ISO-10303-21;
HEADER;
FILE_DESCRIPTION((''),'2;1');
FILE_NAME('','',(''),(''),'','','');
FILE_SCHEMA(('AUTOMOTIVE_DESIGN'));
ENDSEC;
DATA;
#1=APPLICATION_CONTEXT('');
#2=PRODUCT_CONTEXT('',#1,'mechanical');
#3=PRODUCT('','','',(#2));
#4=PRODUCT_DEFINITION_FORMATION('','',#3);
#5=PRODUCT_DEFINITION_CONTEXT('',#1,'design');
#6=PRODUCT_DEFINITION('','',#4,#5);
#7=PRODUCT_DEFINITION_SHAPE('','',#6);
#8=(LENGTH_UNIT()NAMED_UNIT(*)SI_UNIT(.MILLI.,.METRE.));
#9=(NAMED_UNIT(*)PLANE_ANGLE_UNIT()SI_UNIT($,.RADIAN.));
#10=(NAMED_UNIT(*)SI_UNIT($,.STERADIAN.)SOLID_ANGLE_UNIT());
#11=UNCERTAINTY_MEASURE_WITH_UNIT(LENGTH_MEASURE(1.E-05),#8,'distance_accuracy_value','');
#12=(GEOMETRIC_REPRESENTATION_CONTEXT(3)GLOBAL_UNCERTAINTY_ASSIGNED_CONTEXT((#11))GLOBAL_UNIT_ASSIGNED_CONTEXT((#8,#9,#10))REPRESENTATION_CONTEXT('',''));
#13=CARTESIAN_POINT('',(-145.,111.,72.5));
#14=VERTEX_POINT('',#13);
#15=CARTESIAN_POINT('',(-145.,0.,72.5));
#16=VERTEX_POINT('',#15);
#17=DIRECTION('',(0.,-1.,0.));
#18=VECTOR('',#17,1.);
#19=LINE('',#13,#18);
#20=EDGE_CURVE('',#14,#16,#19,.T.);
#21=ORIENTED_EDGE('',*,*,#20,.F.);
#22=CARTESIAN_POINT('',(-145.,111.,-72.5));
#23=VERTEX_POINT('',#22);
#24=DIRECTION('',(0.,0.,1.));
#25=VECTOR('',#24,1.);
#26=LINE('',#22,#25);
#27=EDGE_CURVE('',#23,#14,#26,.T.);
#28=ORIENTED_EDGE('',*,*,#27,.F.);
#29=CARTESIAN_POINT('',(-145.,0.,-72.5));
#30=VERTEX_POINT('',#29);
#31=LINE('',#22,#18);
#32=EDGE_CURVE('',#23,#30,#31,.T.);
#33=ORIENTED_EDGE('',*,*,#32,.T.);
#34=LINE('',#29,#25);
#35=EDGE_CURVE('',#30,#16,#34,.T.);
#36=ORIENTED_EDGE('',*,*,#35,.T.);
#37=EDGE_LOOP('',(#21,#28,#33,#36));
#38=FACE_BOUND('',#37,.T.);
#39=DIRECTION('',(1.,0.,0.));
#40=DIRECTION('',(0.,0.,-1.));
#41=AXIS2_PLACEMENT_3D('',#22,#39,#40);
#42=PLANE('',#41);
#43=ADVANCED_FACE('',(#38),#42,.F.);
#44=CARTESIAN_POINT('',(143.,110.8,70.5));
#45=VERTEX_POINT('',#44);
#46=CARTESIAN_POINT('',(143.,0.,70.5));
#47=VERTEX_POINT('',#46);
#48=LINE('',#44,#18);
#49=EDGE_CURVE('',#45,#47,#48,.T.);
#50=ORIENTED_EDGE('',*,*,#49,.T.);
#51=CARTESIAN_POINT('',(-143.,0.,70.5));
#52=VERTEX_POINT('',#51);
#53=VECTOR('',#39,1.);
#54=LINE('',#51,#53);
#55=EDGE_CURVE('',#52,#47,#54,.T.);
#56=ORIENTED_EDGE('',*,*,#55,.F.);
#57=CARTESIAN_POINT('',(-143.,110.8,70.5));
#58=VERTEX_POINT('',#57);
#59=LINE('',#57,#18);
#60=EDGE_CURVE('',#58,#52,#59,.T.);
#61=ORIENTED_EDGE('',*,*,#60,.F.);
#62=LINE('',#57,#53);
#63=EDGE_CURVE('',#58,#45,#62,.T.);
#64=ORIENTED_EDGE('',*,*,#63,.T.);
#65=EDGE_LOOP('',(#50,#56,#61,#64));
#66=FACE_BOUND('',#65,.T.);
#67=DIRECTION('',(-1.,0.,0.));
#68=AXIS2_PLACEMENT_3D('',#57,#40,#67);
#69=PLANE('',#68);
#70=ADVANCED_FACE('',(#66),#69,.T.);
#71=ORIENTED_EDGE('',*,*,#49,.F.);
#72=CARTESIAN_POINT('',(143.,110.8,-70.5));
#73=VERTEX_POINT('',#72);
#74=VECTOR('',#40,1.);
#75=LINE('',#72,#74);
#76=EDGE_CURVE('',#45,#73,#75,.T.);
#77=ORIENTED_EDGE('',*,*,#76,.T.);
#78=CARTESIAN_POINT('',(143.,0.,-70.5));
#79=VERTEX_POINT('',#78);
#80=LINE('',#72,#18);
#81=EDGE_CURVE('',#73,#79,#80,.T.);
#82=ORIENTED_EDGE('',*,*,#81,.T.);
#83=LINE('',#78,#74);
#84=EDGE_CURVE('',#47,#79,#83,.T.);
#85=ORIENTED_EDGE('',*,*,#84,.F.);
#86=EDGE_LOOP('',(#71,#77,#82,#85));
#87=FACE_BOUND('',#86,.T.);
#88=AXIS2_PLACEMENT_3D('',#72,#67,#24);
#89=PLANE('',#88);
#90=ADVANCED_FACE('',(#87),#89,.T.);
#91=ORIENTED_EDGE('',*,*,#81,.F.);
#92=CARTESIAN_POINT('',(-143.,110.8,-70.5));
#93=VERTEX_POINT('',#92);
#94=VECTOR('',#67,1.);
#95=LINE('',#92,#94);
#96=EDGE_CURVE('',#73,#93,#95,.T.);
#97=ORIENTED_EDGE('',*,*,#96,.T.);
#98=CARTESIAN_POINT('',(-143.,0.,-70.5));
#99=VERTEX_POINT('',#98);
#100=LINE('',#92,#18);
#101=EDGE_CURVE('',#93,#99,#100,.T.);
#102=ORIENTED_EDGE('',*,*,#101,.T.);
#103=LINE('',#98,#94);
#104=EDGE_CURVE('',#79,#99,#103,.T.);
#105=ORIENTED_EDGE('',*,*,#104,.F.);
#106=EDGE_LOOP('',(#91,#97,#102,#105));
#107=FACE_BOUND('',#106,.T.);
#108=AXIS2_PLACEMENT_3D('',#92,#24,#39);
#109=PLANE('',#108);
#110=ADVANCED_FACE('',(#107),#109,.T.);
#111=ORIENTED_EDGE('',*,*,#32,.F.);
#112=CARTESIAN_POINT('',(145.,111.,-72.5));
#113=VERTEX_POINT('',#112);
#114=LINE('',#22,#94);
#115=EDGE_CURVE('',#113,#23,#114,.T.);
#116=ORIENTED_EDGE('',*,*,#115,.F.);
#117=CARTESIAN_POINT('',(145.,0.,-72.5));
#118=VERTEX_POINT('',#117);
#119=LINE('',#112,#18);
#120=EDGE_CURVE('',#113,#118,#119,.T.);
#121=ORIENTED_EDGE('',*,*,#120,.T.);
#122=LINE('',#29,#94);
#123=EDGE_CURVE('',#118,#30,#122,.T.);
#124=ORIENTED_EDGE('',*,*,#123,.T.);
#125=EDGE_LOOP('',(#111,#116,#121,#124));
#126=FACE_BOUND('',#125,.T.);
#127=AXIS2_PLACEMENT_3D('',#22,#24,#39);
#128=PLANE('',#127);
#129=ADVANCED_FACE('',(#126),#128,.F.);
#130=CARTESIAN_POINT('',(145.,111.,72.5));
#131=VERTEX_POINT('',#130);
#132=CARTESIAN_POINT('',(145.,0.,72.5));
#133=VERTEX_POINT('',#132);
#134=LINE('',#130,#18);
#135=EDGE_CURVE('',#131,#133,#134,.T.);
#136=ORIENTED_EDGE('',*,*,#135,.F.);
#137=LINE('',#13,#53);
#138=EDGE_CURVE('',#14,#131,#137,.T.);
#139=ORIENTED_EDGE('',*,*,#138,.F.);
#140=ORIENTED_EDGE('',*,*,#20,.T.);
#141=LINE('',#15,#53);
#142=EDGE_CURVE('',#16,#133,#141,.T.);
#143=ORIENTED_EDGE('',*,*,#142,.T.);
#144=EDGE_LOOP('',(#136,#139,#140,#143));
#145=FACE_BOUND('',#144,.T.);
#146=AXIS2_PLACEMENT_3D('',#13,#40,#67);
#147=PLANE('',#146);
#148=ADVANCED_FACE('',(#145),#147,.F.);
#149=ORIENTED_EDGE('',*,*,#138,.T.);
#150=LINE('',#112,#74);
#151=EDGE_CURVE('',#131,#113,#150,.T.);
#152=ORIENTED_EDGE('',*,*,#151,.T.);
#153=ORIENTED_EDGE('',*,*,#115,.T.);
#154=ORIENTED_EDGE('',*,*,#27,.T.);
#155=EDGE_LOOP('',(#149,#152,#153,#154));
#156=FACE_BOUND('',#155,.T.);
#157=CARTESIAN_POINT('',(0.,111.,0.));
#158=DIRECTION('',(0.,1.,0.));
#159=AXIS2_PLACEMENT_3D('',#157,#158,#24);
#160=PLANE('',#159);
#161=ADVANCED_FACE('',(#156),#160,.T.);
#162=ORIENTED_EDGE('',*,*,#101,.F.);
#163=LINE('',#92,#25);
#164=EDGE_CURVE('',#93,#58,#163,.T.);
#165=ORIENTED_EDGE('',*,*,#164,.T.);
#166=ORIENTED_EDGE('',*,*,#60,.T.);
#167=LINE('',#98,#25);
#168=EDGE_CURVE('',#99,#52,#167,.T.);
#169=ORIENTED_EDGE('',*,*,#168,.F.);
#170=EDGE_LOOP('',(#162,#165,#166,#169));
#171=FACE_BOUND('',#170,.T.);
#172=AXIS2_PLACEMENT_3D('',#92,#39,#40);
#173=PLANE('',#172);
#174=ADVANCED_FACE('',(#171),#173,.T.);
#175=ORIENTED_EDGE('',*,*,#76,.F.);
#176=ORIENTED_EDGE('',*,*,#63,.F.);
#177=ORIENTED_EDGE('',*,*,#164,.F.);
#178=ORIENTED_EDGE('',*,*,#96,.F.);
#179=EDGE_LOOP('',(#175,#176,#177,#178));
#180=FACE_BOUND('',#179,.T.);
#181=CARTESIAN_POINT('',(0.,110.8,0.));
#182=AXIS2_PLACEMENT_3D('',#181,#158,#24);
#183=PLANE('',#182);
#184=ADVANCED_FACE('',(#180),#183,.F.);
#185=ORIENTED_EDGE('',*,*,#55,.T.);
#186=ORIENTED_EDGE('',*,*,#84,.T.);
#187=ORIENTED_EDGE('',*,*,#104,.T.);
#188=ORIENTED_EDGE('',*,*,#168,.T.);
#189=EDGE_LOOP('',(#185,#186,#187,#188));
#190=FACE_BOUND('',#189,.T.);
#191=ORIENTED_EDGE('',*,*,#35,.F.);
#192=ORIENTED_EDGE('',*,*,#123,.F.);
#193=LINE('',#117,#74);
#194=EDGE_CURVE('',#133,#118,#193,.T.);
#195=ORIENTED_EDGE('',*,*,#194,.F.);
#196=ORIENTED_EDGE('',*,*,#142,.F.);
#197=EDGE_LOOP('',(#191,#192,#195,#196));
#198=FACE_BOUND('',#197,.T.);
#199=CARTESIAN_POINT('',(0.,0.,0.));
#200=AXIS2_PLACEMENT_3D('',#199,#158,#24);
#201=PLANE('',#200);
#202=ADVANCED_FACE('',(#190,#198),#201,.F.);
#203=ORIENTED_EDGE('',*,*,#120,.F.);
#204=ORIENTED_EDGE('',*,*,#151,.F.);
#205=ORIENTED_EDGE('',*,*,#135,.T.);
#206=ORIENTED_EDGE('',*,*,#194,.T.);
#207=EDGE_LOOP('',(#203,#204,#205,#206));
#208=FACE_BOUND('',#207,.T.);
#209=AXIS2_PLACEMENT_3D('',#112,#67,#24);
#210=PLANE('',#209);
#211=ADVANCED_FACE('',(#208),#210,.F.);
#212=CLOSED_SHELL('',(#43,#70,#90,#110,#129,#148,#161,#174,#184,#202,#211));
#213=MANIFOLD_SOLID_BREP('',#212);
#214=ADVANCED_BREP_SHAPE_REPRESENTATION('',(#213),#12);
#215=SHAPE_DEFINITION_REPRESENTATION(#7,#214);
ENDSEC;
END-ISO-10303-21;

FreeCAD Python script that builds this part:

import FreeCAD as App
import Part
import Sketcher
from FreeCAD import Vector
Q = App.Units.Quantity

doc = App.newDocument("Part")
params = doc.addObject("Spreadsheet::Sheet", "Params")
for row, (alias, value) in enumerate([
    ("sketch1_width", "290 mm"),
    ("sketch1_height", "145 mm"),
    ("pad1_length", "111 mm"),
    ("sketch2_width", "286 mm"),
    ("sketch2_height", "141 mm"),
    ("pocket1_length", "110.8 mm"),
], start=1):
    params.set(f"A{row}", alias)
    params.set(f"B{row}", "=" + value)
    params.setAlias(f"B{row}", alias)

body = doc.addObject("PartDesign::Body", "Body")

sketch1 = body.newObject("Sketcher::SketchObject", "Sketch")
sketch1.AttachmentSupport = (doc.getObject("XZ_Plane"), [""])
sketch1.MapMode = "FlatFace"
sketch1.addGeometry([
    Part.LineSegment(Vector(-145, -72.5, 0), Vector(-145, 72.5, 0)),
    Part.LineSegment(Vector(-145, 72.5, 0), Vector(145, 72.5, 0)),
    Part.LineSegment(Vector(145, 72.5, 0), Vector(145, -72.5, 0)),
    Part.LineSegment(Vector(145, -72.5, 0), Vector(-145, -72.5, 0)),
], False)
sketch1.addConstraint([
    Sketcher.Constraint("Coincident", 0, 2, 1, 1),
    Sketcher.Constraint("Coincident", 1, 2, 2, 1),
    Sketcher.Constraint("Coincident", 2, 2, 3, 1),
    Sketcher.Constraint("Coincident", 3, 2, 0, 1),
    Sketcher.Constraint("Vertical", 0),
    Sketcher.Constraint("Horizontal", 1),
    Sketcher.Constraint("Vertical", 2),
    Sketcher.Constraint("Horizontal", 3),
    Sketcher.Constraint("Symmetric", 0, 2, 2, 2, -1, 1),
    Sketcher.Constraint("DistanceX", 1, 1, 1, 2, Q("290 mm")),
    Sketcher.Constraint("DistanceY", 0, 1, 0, 2, Q("145 mm")),
])
sketch1.setExpression("Constraints[9]", "Params.sketch1_width")
sketch1.setExpression("Constraints[10]", "Params.sketch1_height")
pad1 = body.newObject("PartDesign::Pad", "Pad")
pad1.Profile = sketch1
pad1.setExpression("Length", "Params.pad1_length")
pad1.Reversed = True

sketch2 = body.newObject("Sketcher::SketchObject", "Sketch001")
sketch2.AttachmentSupport = (doc.getObject("XZ_Plane"), [""])
sketch2.MapMode = "FlatFace"
sketch2.addGeometry([
    Part.LineSegment(Vector(-143, -70.5, 0), Vector(-143, 70.5, 0)),
    Part.LineSegment(Vector(-143, 70.5, 0), Vector(143, 70.5, 0)),
    Part.LineSegment(Vector(143, 70.5, 0), Vector(143, -70.5, 0)),
    Part.LineSegment(Vector(143, -70.5, 0), Vector(-143, -70.5, 0)),
], False)
sketch2.addConstraint([
    Sketcher.Constraint("Coincident", 0, 2, 1, 1),
    Sketcher.Constraint("Coincident", 1, 2, 2, 1),
    Sketcher.Constraint("Coincident", 2, 2, 3, 1),
    Sketcher.Constraint("Coincident", 3, 2, 0, 1),
    Sketcher.Constraint("Vertical", 0),
    Sketcher.Constraint("Horizontal", 1),
    Sketcher.Constraint("Vertical", 2),
    Sketcher.Constraint("Horizontal", 3),
    Sketcher.Constraint("Symmetric", 0, 2, 2, 2, -1, 1),
    Sketcher.Constraint("DistanceX", 1, 1, 1, 2, Q("286 mm")),
    Sketcher.Constraint("DistanceY", 0, 1, 0, 2, Q("141 mm")),
])
sketch2.setExpression("Constraints[9]", "Params.sketch2_width")
sketch2.setExpression("Constraints[10]", "Params.sketch2_height")
pocket1 = body.newObject("PartDesign::Pocket", "Pocket")
pocket1.Profile = sketch2
pocket1.setExpression("Length", "Params.pocket1_length")

doc.recompute()
